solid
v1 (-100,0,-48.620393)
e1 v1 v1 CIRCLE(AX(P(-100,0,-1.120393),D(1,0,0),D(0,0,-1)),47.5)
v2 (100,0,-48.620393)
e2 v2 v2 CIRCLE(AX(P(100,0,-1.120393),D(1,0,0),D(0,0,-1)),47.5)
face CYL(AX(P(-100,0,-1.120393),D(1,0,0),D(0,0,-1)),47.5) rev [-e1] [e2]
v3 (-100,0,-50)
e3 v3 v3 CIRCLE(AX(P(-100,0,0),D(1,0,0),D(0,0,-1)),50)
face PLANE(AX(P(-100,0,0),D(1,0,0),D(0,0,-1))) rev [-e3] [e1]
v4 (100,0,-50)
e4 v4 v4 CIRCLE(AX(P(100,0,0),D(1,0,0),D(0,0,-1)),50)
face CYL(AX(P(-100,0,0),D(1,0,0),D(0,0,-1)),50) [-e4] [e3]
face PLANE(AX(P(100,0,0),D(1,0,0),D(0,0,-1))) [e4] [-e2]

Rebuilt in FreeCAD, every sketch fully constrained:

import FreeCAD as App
import Part
import Sketcher
from FreeCAD import Vector

doc = App.newDocument("Part")
body = doc.addObject("PartDesign::Body", "Body")

sketch1 = body.newObject("Sketcher::SketchObject", "Sketch")
sketch1.AttachmentSupport = (doc.getObject("YZ_Plane"), [""])
sketch1.MapMode = "FlatFace"
sketch1.addGeometry([
    Part.Circle(Vector(0, 0, 0), Vector(0, 0, 1), 50),
    Part.Circle(Vector(0, -1, 0), Vector(0, 0, 1), 48),
], False)
sketch1.addConstraint([
    Sketcher.Constraint("Coincident", 0, 3, -1, 1),
    Sketcher.Constraint("PointOnObject", 1, 3, -2),
    Sketcher.Constraint("Diameter", 0, 100.0),
    Sketcher.Constraint("Diameter", 1, 95.0),
    Sketcher.Constraint("DistanceY", 1, 3, -1, 1, 1.120393),
])
pad1 = body.newObject("PartDesign::Pad", "Pad")
pad1.Profile = sketch1
pad1.Type = "TwoLengths"
pad1.Length = 100
pad1.Length2 = 100

doc.recompute()
